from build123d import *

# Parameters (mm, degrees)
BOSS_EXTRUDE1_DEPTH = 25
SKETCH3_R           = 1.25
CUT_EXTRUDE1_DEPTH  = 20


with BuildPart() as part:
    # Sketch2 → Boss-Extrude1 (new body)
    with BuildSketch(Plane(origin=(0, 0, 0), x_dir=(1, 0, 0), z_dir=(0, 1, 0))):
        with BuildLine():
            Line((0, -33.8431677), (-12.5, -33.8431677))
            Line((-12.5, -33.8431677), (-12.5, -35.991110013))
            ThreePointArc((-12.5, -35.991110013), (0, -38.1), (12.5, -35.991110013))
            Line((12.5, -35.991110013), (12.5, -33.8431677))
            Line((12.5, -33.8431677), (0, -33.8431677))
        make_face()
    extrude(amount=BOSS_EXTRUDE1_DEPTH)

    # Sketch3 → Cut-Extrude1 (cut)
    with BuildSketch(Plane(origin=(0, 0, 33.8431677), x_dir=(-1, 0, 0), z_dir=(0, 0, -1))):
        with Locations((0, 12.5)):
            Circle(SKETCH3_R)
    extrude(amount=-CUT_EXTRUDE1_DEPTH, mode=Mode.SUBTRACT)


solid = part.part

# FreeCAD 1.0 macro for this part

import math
import FreeCAD as App
import Part
import Sketcher

doc = App.newDocument("Part")
params = doc.addObject("Spreadsheet::Sheet", "Params")
for row, (alias, value) in enumerate([
    ("sketch1_radius", "38.1 mm"),
    ("sketch1_width", "25 mm"),
    ("pad1_length", "25 mm"),
    ("sketch2_diameter", "2.5 mm"),
    ("pocket1_length", "20 mm"),
], start=1):
    params.set(f"A{row}", alias)
    params.set(f"B{row}", "=" + value)
    params.setAlias(f"B{row}", alias)

body = doc.addObject("PartDesign::Body", "Body")

# Sketch on XZ plane
sketch1 = body.newObject("Sketcher::SketchObject", "Sketch")
sketch1.AttachmentSupport = (doc.getObject("XZ_Plane"), [""])
sketch1.MapMode = "FlatFace"
sketch1.addGeometry([
    Part.LineSegment(App.Vector(-12.5, 33.8, 0), App.Vector(-12.5, 36, 0)),
    Part.ArcOfCircle(Part.Circle(App.Vector(0, 0, 0), App.Vector(0, 0, 1), 38.1), math.radians(71), math.radians(109)),
    Part.LineSegment(App.Vector(12.5, 36, 0), App.Vector(12.5, 33.8, 0)),
    Part.LineSegment(App.Vector(12.5, 33.8, 0), App.Vector(-12.5, 33.8, 0)),
], False)
sketch1.addConstraint([
    Sketcher.Constraint("Coincident", 0, 2, 1, 2),
    Sketcher.Constraint("Coincident", 1, 1, 2, 1),
    Sketcher.Constraint("Coincident", 2, 2, 3, 1),
    Sketcher.Constraint("Coincident", 3, 2, 0, 1),
    Sketcher.Constraint("Vertical", 0),
    Sketcher.Constraint("Vertical", 2),
    Sketcher.Constraint("Horizontal", 3),
    Sketcher.Constraint("Coincident", 1, 3, -1, 1),
    Sketcher.Constraint("Horizontal", 0, 2, 1, 1),
    Sketcher.Constraint("Radius", 1, 38.1),
    Sketcher.Constraint("DistanceX", 3, 2, 3, 1, 25.0),
    Sketcher.Constraint("DistanceY", 0, 1, 0, 2, 2.147942),
])
sketch1.setExpression("Constraints[9]", "Params.sketch1_radius")
sketch1.setExpression("Constraints[10]", "Params.sketch1_width")
pad1 = body.newObject("PartDesign::Pad", "Pad")
pad1.Profile = sketch1
pad1.setExpression("Length", "Params.pad1_length")
pad1.Reversed = True

# Sketch on XY plane
sketch2 = body.newObject("Sketcher::SketchObject", "Sketch001")
sketch2.AttachmentSupport = (doc.getObject("XY_Plane"), [""])
sketch2.MapMode = "FlatFace"
sketch2.AttachmentOffset = App.Placement(App.Vector(0, 0, 33.843168), App.Rotation())
sketch2.addGeometry(Part.Circle(App.Vector(0, 12.5, 0), App.Vector(0, 0, 1), 1.2), False)
sketch2.addConstraint([
    Sketcher.Constraint("PointOnObject", 0, 3, -2),
    Sketcher.Constraint("Diameter", 0, 2.5),
    Sketcher.Constraint("DistanceY", -1, 1, 0, 3, 12.5),
])
sketch2.setExpression("Constraints[1]", "Params.sketch2_diameter")
pocket1 = body.newObject("PartDesign::Pocket", "Pocket")
pocket1.Profile = sketch2
pocket1.setExpression("Length", "Params.pocket1_length")
pocket1.Reversed = True

doc.recompute()
